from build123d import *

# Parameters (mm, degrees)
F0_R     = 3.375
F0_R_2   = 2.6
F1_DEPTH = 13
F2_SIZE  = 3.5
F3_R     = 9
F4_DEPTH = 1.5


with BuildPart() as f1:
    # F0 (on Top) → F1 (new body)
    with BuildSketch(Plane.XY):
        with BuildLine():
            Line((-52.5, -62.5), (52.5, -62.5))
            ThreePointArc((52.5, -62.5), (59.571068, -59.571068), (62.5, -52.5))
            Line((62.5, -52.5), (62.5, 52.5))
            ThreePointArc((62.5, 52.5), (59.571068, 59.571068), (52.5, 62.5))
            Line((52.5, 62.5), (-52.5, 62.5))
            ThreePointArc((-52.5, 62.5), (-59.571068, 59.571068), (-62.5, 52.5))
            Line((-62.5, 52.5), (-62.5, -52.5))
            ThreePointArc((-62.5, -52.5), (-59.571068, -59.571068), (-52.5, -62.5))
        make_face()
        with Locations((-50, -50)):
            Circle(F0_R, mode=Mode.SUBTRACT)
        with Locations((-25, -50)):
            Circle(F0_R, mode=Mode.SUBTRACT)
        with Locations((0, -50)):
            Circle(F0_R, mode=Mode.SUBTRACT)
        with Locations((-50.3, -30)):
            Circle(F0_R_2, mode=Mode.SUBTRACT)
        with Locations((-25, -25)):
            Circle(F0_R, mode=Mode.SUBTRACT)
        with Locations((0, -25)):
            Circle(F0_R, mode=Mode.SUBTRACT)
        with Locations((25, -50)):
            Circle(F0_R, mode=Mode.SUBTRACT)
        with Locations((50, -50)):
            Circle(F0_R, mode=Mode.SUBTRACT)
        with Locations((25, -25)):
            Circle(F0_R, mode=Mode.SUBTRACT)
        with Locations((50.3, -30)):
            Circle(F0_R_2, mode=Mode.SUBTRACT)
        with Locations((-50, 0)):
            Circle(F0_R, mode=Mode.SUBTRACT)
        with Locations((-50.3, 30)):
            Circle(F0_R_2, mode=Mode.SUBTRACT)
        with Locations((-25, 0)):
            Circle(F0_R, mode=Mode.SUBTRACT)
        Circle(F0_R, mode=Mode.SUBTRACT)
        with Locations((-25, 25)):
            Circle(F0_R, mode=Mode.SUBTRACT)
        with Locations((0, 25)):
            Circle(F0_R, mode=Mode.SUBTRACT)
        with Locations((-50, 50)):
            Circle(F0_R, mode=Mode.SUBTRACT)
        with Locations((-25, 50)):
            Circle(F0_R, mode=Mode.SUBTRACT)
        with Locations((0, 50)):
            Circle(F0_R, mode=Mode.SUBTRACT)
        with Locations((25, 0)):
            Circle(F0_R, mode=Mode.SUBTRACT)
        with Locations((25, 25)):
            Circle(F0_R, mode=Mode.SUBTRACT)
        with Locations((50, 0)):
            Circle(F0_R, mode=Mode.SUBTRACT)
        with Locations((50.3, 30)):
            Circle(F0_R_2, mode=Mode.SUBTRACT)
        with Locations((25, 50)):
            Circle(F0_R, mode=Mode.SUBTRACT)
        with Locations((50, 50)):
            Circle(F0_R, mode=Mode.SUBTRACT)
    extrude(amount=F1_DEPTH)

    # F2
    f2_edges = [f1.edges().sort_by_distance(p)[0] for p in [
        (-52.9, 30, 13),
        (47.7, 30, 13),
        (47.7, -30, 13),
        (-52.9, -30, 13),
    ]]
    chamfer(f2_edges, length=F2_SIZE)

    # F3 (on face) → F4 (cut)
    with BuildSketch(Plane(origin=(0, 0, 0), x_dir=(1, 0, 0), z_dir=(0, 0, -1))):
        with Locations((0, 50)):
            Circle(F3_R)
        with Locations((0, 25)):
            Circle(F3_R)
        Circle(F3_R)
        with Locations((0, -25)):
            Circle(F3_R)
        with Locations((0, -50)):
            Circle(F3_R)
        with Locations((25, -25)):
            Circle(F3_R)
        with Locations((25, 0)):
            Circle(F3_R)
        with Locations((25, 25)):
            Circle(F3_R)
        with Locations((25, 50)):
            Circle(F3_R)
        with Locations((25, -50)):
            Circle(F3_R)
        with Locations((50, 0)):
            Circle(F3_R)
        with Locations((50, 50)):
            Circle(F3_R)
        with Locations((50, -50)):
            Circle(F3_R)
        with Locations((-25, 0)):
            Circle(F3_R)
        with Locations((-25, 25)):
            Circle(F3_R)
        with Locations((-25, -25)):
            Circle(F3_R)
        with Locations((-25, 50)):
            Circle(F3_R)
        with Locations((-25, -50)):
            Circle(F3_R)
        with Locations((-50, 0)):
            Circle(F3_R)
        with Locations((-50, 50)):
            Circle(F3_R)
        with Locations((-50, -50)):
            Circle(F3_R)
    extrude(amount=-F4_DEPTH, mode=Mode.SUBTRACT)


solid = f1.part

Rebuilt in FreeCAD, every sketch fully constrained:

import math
import FreeCAD as App
import Part
import Sketcher
from FreeCAD import Vector


def edges_at(feature, points):
    """Names of the edges that pass closest to the given points."""
    edges = feature.Shape.Edges
    near = lambda p: min(range(len(edges)), key=lambda i: edges[i].distToShape(Part.Vertex(*p))[0])
    return sorted({f"Edge{near(p) + 1}" for p in points})

doc = App.newDocument("Part")
body = doc.addObject("PartDesign::Body", "Body")

# Sketch on XY plane
sketch1 = body.newObject("Sketcher::SketchObject", "Sketch")
sketch1.AttachmentSupport = (doc.getObject("XY_Plane"), [""])
sketch1.MapMode = "FlatFace"
sketch1.addGeometry([
    Part.LineSegment(Vector(-52.5, -62.5, 0), Vector(52.5, -62.5, 0)),  # 0
    Part.ArcOfCircle(Part.Circle(Vector(52.5, -52.5, 0), Vector(0, 0, 1), 10), math.radians(-90), math.radians(0)),  # 1
    Part.LineSegment(Vector(62.5, -52.5, 0), Vector(62.5, 52.5, 0)),  # 2
    Part.ArcOfCircle(Part.Circle(Vector(52.5, 52.5, 0), Vector(0, 0, 1), 10), math.radians(0), math.radians(90)),  # 3
    Part.LineSegment(Vector(52.5, 62.5, 0), Vector(-52.5, 62.5, 0)),  # 4
    Part.ArcOfCircle(Part.Circle(Vector(-52.5, 52.5, 0), Vector(0, 0, 1), 10), math.radians(90), math.radians(180)),  # 5
    Part.LineSegment(Vector(-62.5, 52.5, 0), Vector(-62.5, -52.5, 0)),  # 6
    Part.ArcOfCircle(Part.Circle(Vector(-52.5, -52.5, 0), Vector(0, 0, 1), 10), math.radians(180), math.radians(270)),  # 7
    Part.Circle(Vector(-50, -50, 0), Vector(0, 0, 1), 3.4),  # 8
    Part.Circle(Vector(-50.3, -30, 0), Vector(0, 0, 1), 2.6),  # 9
    Part.Circle(Vector(-25, -50, 0), Vector(0, 0, 1), 3.4),  # 10
    Part.Circle(Vector(-25, -25, 0), Vector(0, 0, 1), 3.4),  # 11
    Part.Circle(Vector(0, -50, 0), Vector(0, 0, 1), 3.4),  # 12
    Part.Circle(Vector(25, -50, 0), Vector(0, 0, 1), 3.4),  # 13
    Part.Circle(Vector(50, -50, 0), Vector(0, 0, 1), 3.4),  # 14
    Part.Circle(Vector(50.3, -30, 0), Vector(0, 0, 1), 2.6),  # 15
    Part.Circle(Vector(0, -25, 0), Vector(0, 0, 1), 3.4),  # 16
    Part.Circle(Vector(25, -25, 0), Vector(0, 0, 1), 3.4),  # 17
    Part.Circle(Vector(-50, 0, 0), Vector(0, 0, 1), 3.4),  # 18
    Part.Circle(Vector(-25, 0, 0), Vector(0, 0, 1), 3.4),  # 19
    Part.Circle(Vector(-25, 25, 0), Vector(0, 0, 1), 3.4),  # 20
    Part.Circle(Vector(-50.3, 30, 0), Vector(0, 0, 1), 2.6),  # 21
    Part.Circle(Vector(-50, 50, 0), Vector(0, 0, 1), 3.4),  # 22
    Part.Circle(Vector(-25, 50, 0), Vector(0, 0, 1), 3.4),  # 23
    Part.Circle(Vector(0, 0, 0), Vector(0, 0, 1), 3.4),  # 24
    Part.Circle(Vector(25, 0, 0), Vector(0, 0, 1), 3.4),  # 25
    Part.Circle(Vector(0, 25, 0), Vector(0, 0, 1), 3.4),  # 26
    Part.Circle(Vector(25, 25, 0), Vector(0, 0, 1), 3.4),  # 27
    Part.Circle(Vector(50, 0, 0), Vector(0, 0, 1), 3.4),  # 28
    Part.Circle(Vector(0, 50, 0), Vector(0, 0, 1), 3.4),  # 29
    Part.Circle(Vector(25, 50, 0), Vector(0, 0, 1), 3.4),  # 30
    Part.Circle(Vector(50.3, 30, 0), Vector(0, 0, 1), 2.6),  # 31
    Part.Circle(Vector(50, 50, 0), Vector(0, 0, 1), 3.4),  # 32
], False)
sketch1.addConstraint([
    Sketcher.Constraint("Tangent", 0, 2, 1, 1),
    Sketcher.Constraint("Tangent", 1, 2, 2, 1),
    Sketcher.Constraint("Tangent", 2, 2, 3, 1),
    Sketcher.Constraint("Tangent", 3, 2, 4, 1),
    Sketcher.Constraint("Tangent", 4, 2, 5, 1),
    Sketcher.Constraint("Tangent", 5, 2, 6, 1),
    Sketcher.Constraint("Tangent", 6, 2, 7, 1),
    Sketcher.Constraint("Tangent", 7, 2, 0, 1),
    Sketcher.Constraint("Horizontal", 0),
    Sketcher.Constraint("Vertical", 2),
    Sketcher.Constraint("Horizontal", 4),
    Sketcher.Constraint("Vertical", 6),
    Sketcher.Constraint("Coincident", 24, 3, -1, 1),
    Sketcher.Constraint("Equal", 1, 3),
    Sketcher.Constraint("Equal", 3, 5),
    Sketcher.Constraint("Equal", 5, 7),
    Sketcher.Constraint("Equal", 8, 10),
    Sketcher.Constraint("Equal", 10, 11),
    Sketcher.Constraint("Equal", 11, 12),
    Sketcher.Constraint("Equal", 12, 13),
    Sketcher.Constraint("Equal", 13, 14),
    Sketcher.Constraint("Equal", 9, 15),
    Sketcher.Constraint("Equal", 14, 16),
    Sketcher.Constraint("Equal", 16, 17),
    Sketcher.Constraint("Equal", 17, 18),
    Sketcher.Constraint("Equal", 18, 19),
    Sketcher.Constraint("Equal", 19, 20),
    Sketcher.Constraint("Equal", 15, 21),
    Sketcher.Constraint("Equal", 20, 22),
    Sketcher.Constraint("Equal", 22, 23),
    Sketcher.Constraint("Equal", 23, 24),
    Sketcher.Constraint("Equal", 24, 25),
    Sketcher.Constraint("Equal", 25, 26),
    Sketcher.Constraint("Equal", 26, 27),
    Sketcher.Constraint("Equal", 27, 28),
    Sketcher.Constraint("Equal", 28, 29),
    Sketcher.Constraint("Equal", 29, 30),
    Sketcher.Constraint("Equal", 21, 31),
    Sketcher.Constraint("Equal", 30, 32),
    Sketcher.Constraint("Symmetric", 1, 3, 5, 3, -1, 1),
    Sketcher.Constraint("Symmetric", 17, 3, 20, 3, -1, 1),
    Sketcher.Constraint("Symmetric", 15, 3, 21, 3, -1, 1),
    Sketcher.Constraint("Symmetric", 14, 3, 22, 3, -1, 1),
    Sketcher.Constraint("Symmetric", 13, 3, 23, 3, -1, 1),
    Sketcher.Constraint("Symmetric", 19, 3, 25, 3, -1, 1),
    Sketcher.Constraint("Symmetric", 16, 3, 26, 3, -1, 1),
    Sketcher.Constraint("Symmetric", 11, 3, 27, 3, -1, 1),
    Sketcher.Constraint("Symmetric", 18, 3, 28, 3, -1, 1),
    Sketcher.Constraint("Symmetric", 12, 3, 29, 3, -1, 1),
    Sketcher.Constraint("Symmetric", 10, 3, 30, 3, -1, 1),
    Sketcher.Constraint("Symmetric", 9, 3, 31, 3, -1, 1),
    Sketcher.Constraint("Symmetric", 8, 3, 32, 3, -1, 1),
    Sketcher.Constraint("Symmetric", 10, 3, 13, 3, -2),
    Sketcher.Constraint("Symmetric", 8, 3, 14, 3, -2),
    Sketcher.Constraint("Symmetric", 9, 3, 15, 3, -2),
    Sketcher.Constraint("Symmetric", 11, 3, 17, 3, -2),
    Sketcher.Constraint("PointOnObject", 12, 3, -2),
    Sketcher.Constraint("PointOnObject", 16, 3, -2),
    Sketcher.Constraint("PointOnObject", 18, 3, -1),
    Sketcher.Constraint("PointOnObject", 19, 3, -1),
    Sketcher.Constraint("Horizontal", 8, 3, 10, 3),
    Sketcher.Constraint("Horizontal", 10, 3, 12, 3),
    Sketcher.Constraint("Horizontal", 11, 3, 16, 3),
    Sketcher.Constraint("Vertical", 10, 3, 11, 3),
    Sketcher.Constraint("Vertical", 8, 3, 18, 3),
    Sketcher.Constraint("Vertical", 11, 3, 19, 3),
    Sketcher.Constraint("Equal", 4, 2),
    Sketcher.Constraint("Radius", 1, 9.999999),
    Sketcher.Constraint("Diameter", 9, 5.2),
    Sketcher.Constraint("Diameter", 8, 6.75),
    Sketcher.Constraint("DistanceX", 0, 1, 0, 2, 105.0),
    Sketcher.Constraint("DistanceX", 8, 3, -1, 1, 50.0),
    Sketcher.Constraint("DistanceY", 8, 3, -1, 1, 50.0),
    Sketcher.Constraint("DistanceY", 9, 3, -1, 1, 30.0),
    Sketcher.Constraint("DistanceX", 10, 3, -1, 1, 25.0),
    Sketcher.Constraint("DistanceY", 11, 3, -1, 1, 25.0),
    Sketcher.Constraint("DistanceX", 9, 3, -1, 1, 50.3),
])
pad1 = body.newObject("PartDesign::Pad", "Pad")
pad1.Profile = sketch1
pad1.Length = 13
doc.recompute()

chamfer = body.newObject("PartDesign::Chamfer", "Chamfer")
chamfer.Base = (pad1, edges_at(pad1, [
    (-52.9, 30, 13),
    (47.7, 30, 13),
    (47.7, -30, 13),
    (-52.9, -30, 13),
]))
chamfer.Size = 3.5

# Sketch on XY plane
sketch2 = body.newObject("Sketcher::SketchObject", "Sketch001")
sketch2.AttachmentSupport = (doc.getObject("XY_Plane"), [""])
sketch2.MapMode = "FlatFace"
sketch2.addGeometry([
    Part.Circle(Vector(0, -50, 0), Vector(0, 0, 1), 9),  # 0
    Part.Circle(Vector(0, -25, 0), Vector(0, 0, 1), 9),  # 1
    Part.Circle(Vector(0, 0, 0), Vector(0, 0, 1), 9),  # 2
    Part.Circle(Vector(0, 25, 0), Vector(0, 0, 1), 9),  # 3
    Part.Circle(Vector(0, 50, 0), Vector(0, 0, 1), 9),  # 4
    Part.Circle(Vector(25, 25, 0), Vector(0, 0, 1), 9),  # 5
    Part.Circle(Vector(25, 0, 0), Vector(0, 0, 1), 9),  # 6
    Part.Circle(Vector(25, -25, 0), Vector(0, 0, 1), 9),  # 7
    Part.Circle(Vector(25, -50, 0), Vector(0, 0, 1), 9),  # 8
    Part.Circle(Vector(25, 50, 0), Vector(0, 0, 1), 9),  # 9
    Part.Circle(Vector(50, 0, 0), Vector(0, 0, 1), 9),  # 10
    Part.Circle(Vector(50, -50, 0), Vector(0, 0, 1), 9),  # 11
    Part.Circle(Vector(50, 50, 0), Vector(0, 0, 1), 9),  # 12
    Part.Circle(Vector(-25, 0, 0), Vector(0, 0, 1), 9),  # 13
    Part.Circle(Vector(-25, -25, 0), Vector(0, 0, 1), 9),  # 14
    Part.Circle(Vector(-25, 25, 0), Vector(0, 0, 1), 9),  # 15
    Part.Circle(Vector(-25, -50, 0), Vector(0, 0, 1), 9),  # 16
    Part.Circle(Vector(-25, 50, 0), Vector(0, 0, 1), 9),  # 17
    Part.Circle(Vector(-50, 0, 0), Vector(0, 0, 1), 9),  # 18
    Part.Circle(Vector(-50, -50, 0), Vector(0, 0, 1), 9),  # 19
    Part.Circle(Vector(-50, 50, 0), Vector(0, 0, 1), 9),  # 20
], False)
sketch2.addConstraint([
    Sketcher.Constraint("Coincident", 2, 3, -1, 1),
    Sketcher.Constraint("Equal", 0, 1),
    Sketcher.Constraint("Equal", 1, 2),
    Sketcher.Constraint("Equal", 2, 3),
    Sketcher.Constraint("Equal", 3, 4),
    Sketcher.Constraint("Equal", 4, 5),
    Sketcher.Constraint("Equal", 5, 6),
    Sketcher.Constraint("Equal", 6, 7),
    Sketcher.Constraint("Equal", 7, 8),
    Sketcher.Constraint("Equal", 8, 9),
    Sketcher.Constraint("Equal", 9, 10),
    Sketcher.Constraint("Equal", 10, 11),
    Sketcher.Constraint("Equal", 11, 12),
    Sketcher.Constraint("Equal", 12, 13),
    Sketcher.Constraint("Equal", 13, 14),
    Sketcher.Constraint("Equal", 14, 15),
    Sketcher.Constraint("Equal", 15, 16),
    Sketcher.Constraint("Equal", 16, 17),
    Sketcher.Constraint("Equal", 17, 18),
    Sketcher.Constraint("Equal", 18, 19),
    Sketcher.Constraint("Equal", 19, 20),
    Sketcher.Constraint("Symmetric", 1, 3, 3, 3, -1, 1),
    Sketcher.Constraint("Symmetric", 0, 3, 4, 3, -1, 1),
    Sketcher.Constraint("Symmetric", 6, 3, 13, 3, -1, 1),
    Sketcher.Constraint("Symmetric", 5, 3, 14, 3, -1, 1),
    Sketcher.Constraint("Symmetric", 7, 3, 15, 3, -1, 1),
    Sketcher.Constraint("Symmetric", 9, 3, 16, 3, -1, 1),
    Sketcher.Constraint("Symmetric", 8, 3, 17, 3, -1, 1),
    Sketcher.Constraint("Symmetric", 10, 3, 18, 3, -1, 1),
    Sketcher.Constraint("Symmetric", 12, 3, 19, 3, -1, 1),
    Sketcher.Constraint("Symmetric", 11, 3, 20, 3, -1, 1),
    Sketcher.Constraint("Symmetric", 7, 3, 14, 3, -2),
    Sketcher.Constraint("Symmetric", 8, 3, 16, 3, -2),
    Sketcher.Constraint("Symmetric", 11, 3, 19, 3, -2),
    Sketcher.Constraint("PointOnObject", 0, 3, -2),
    Sketcher.Constraint("PointOnObject", 1, 3, -2),
    Sketcher.Constraint("PointOnObject", 6, 3, -1),
    Sketcher.Constraint("PointOnObject", 10, 3, -1),
    Sketcher.Constraint("Horizontal", 3, 3, 5, 3),
    Sketcher.Constraint("Horizontal", 0, 3, 8, 3),
    Sketcher.Constraint("Horizontal", 8, 3, 11, 3),
    Sketcher.Constraint("Vertical", 5, 3, 6, 3),
    Sketcher.Constraint("Vertical", 7, 3, 8, 3),
    Sketcher.Constraint("Vertical", 10, 3, 11, 3),
    Sketcher.Constraint("Diameter", 0, 18.0),
    Sketcher.Constraint("DistanceY", 0, 3, -1, 1, 50.0),
    Sketcher.Constraint("DistanceY", 1, 3, -1, 1, 25.0),
    Sketcher.Constraint("DistanceX", -1, 1, 5, 3, 25.0),
    Sketcher.Constraint("DistanceX", -1, 1, 10, 3, 50.0),
])
pocket1 = body.newObject("PartDesign::Pocket", "Pocket")
pocket1.Profile = sketch2
pocket1.Length = 1.5
pocket1.Reversed = True

doc.recompute()
